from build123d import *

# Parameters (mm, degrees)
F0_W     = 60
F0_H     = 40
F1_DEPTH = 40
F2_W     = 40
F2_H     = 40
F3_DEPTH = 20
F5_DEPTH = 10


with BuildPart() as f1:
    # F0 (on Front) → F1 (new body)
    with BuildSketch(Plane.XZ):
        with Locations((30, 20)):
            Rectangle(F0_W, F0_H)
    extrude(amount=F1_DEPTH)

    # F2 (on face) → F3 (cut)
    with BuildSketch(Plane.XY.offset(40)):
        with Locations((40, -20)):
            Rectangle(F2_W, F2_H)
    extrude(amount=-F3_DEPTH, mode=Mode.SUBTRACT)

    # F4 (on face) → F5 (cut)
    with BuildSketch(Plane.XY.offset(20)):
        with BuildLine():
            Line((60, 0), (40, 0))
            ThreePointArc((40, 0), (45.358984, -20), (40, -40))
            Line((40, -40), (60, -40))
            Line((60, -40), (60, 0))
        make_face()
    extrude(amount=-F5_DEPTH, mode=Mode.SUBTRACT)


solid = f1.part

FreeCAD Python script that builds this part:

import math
import FreeCAD as App
import Part
import Sketcher
from FreeCAD import Vector


def add_polygon(sketch, points):
    """Adds a closed chain of lines whose ends are joined by coincident constraints."""
    first, n = sketch.GeometryCount, len(points)
    for a, b in zip(points, points[1:] + points[:1]):
        sketch.addGeometry(Part.LineSegment(App.Vector(*a, 0), App.Vector(*b, 0)), False)
    for i in range(n):
        sketch.addConstraint(Sketcher.Constraint("Coincident", first + i, 2, first + (i + 1) % n, 1))

doc = App.newDocument("Part")
body = doc.addObject("PartDesign::Body", "Body")

sketch1 = body.newObject("Sketcher::SketchObject", "Sketch")
sketch1.AttachmentSupport = (doc.getObject("XZ_Plane"), [""])
sketch1.MapMode = "FlatFace"
add_polygon(sketch1, [(0, 40), (0, 0), (60, 0), (60, 40)])
sketch1.addConstraint([
    Sketcher.Constraint("Vertical", 0),
    Sketcher.Constraint("Horizontal", 1),
    Sketcher.Constraint("Vertical", 2),
    Sketcher.Constraint("Horizontal", 3),
    Sketcher.Constraint("Coincident", 0, 2, -1, 1),
    Sketcher.Constraint("DistanceX", 1, 1, 1, 2, 60.0),
    Sketcher.Constraint("DistanceY", 0, 2, 0, 1, 40.0),
])
pad1 = body.newObject("PartDesign::Pad", "Pad")
pad1.Profile = sketch1
pad1.Length = 40

sketch2 = body.newObject("Sketcher::SketchObject", "Sketch001")
sketch2.AttachmentSupport = (doc.getObject("XY_Plane"), [""])
sketch2.MapMode = "FlatFace"
sketch2.AttachmentOffset = App.Placement(Vector(0, 0, 40), App.Rotation())
add_polygon(sketch2, [(20, 0), (20, -40), (60, -40), (60, 0)])
sketch2.addConstraint([
    Sketcher.Constraint("Vertical", 0),
    Sketcher.Constraint("Horizontal", 1),
    Sketcher.Constraint("Vertical", 2),
    Sketcher.Constraint("Horizontal", 3),
    Sketcher.Constraint("PointOnObject", 2, 2, -1),
    Sketcher.Constraint("Equal", 3, 0),
    Sketcher.Constraint("DistanceX", 1, 1, 1, 2, 40.0),
    Sketcher.Constraint("DistanceX", -1, 1, 0, 2, 20.0),
])
pocket1 = body.newObject("PartDesign::Pocket", "Pocket")
pocket1.Profile = sketch2
pocket1.Length = 20

sketch3 = body.newObject("Sketcher::SketchObject", "Sketch002")
sketch3.AttachmentSupport = (doc.getObject("XY_Plane"), [""])
sketch3.MapMode = "FlatFace"
sketch3.AttachmentOffset = App.Placement(Vector(0, 0, 20), App.Rotation())
sketch3.addGeometry([
    Part.LineSegment(Vector(60, 0, 0), Vector(40, 0, 0)),
    Part.ArcOfCircle(Part.Circle(Vector(5.358985, -20, 0), Vector(0, 0, 1), 39.999999), math.radians(-30.000001), math.radians(30.000001)),
    Part.LineSegment(Vector(40, -40, 0), Vector(60, -40, 0)),
    Part.LineSegment(Vector(60, -40, 0), Vector(60, 0, 0)),
], False)
sketch3.addConstraint([
    Sketcher.Constraint("Coincident", 0, 2, 1, 2),
    Sketcher.Constraint("Coincident", 1, 1, 2, 1),
    Sketcher.Constraint("Coincident", 2, 2, 3, 1),
    Sketcher.Constraint("Coincident", 3, 2, 0, 1),
    Sketcher.Constraint("Horizontal", 0),
    Sketcher.Constraint("Horizontal", 2),
    Sketcher.Constraint("Vertical", 3),
    Sketcher.Constraint("PointOnObject", 0, 2, -1),
    Sketcher.Constraint("Vertical", 0, 2, 1, 1),
    Sketcher.Constraint("Radius", 1, 39.999999),
    Sketcher.Constraint("DistanceX", 0, 2, 0, 1, 20.0),
    Sketcher.Constraint("DistanceY", 3, 1, 3, 2, 40.0),
    Sketcher.Constraint("DistanceX", -1, 1, 0, 2, 40.0),
])
pocket2 = body.newObject("PartDesign::Pocket", "Pocket001")
pocket2.Profile = sketch3
pocket2.Length = 10

doc.recompute()
